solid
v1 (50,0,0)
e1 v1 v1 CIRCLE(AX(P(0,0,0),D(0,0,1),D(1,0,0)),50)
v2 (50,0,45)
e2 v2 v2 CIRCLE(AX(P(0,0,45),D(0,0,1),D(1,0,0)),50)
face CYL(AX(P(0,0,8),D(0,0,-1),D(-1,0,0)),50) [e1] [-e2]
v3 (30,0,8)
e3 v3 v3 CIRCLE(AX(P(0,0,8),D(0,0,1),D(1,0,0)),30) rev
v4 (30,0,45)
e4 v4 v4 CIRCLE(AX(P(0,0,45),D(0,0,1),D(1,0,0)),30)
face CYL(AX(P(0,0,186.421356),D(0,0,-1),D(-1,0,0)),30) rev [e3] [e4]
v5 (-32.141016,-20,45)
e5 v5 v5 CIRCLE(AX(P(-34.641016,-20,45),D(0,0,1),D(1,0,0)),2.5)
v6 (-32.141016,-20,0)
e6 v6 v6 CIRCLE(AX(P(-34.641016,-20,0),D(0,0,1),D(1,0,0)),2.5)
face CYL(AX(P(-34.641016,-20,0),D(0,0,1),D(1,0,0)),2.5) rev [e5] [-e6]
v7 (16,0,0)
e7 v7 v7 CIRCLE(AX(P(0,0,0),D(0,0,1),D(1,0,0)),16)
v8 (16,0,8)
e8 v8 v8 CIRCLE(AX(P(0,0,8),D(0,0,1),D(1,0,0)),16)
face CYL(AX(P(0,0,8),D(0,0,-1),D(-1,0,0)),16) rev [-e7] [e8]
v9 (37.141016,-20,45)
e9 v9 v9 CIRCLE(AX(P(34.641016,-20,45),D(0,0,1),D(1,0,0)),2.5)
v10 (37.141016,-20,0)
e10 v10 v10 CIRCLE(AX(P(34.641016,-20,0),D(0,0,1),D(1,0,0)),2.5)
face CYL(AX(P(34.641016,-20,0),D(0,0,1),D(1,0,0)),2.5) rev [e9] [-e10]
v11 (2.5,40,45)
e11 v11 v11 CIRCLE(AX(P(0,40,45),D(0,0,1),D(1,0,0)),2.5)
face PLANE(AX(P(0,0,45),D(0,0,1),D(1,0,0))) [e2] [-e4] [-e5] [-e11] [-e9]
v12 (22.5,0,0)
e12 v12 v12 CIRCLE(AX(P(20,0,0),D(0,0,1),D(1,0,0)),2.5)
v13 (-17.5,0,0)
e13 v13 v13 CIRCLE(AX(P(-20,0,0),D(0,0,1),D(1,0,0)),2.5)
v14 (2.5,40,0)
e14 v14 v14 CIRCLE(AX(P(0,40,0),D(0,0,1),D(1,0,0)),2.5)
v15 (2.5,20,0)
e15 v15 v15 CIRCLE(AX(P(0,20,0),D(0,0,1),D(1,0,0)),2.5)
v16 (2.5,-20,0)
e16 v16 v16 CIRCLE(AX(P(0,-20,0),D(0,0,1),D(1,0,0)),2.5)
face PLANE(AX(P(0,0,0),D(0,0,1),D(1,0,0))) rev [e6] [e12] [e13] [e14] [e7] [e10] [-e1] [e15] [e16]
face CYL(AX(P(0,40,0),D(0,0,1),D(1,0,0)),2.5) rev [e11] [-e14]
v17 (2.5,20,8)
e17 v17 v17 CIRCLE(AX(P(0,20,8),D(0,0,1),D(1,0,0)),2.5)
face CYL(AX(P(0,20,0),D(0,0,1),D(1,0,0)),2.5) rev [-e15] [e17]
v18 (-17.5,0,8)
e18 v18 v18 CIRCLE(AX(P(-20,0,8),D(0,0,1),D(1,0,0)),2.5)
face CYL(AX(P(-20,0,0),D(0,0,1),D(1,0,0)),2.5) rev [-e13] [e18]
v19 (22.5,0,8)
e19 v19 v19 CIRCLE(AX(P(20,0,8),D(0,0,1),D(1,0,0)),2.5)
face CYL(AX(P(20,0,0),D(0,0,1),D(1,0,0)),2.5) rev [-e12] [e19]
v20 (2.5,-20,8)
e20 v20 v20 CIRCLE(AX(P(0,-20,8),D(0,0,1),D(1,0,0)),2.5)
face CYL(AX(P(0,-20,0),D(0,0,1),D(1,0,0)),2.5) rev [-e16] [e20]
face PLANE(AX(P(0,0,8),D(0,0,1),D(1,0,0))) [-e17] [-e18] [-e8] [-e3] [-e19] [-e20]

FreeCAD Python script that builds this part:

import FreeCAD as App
import Part
import Sketcher
from FreeCAD import Vector

doc = App.newDocument("Part")
body = doc.addObject("PartDesign::Body", "Body")

# Sketch on XY plane
sketch1 = body.newObject("Sketcher::SketchObject", "Sketch")
sketch1.AttachmentSupport = (doc.getObject("XY_Plane"), [""])
sketch1.MapMode = "FlatFace"
sketch1.addGeometry([
    Part.Circle(Vector(0, 0, 0), Vector(0, 0, 1), 50),
    Part.Circle(Vector(0, 0, 0), Vector(0, 0, 1), 16),
], False)
sketch1.addConstraint([
    Sketcher.Constraint("Coincident", 0, 3, -1, 1),
    Sketcher.Constraint("Coincident", 1, 3, -1, 1),
    Sketcher.Constraint("Diameter", 0, 100.0),
    Sketcher.Constraint("Diameter", 1, 32.0),
])
pad1 = body.newObject("PartDesign::Pad", "Pad")
pad1.Profile = sketch1
pad1.Length = 8

# Sketch on XY plane
sketch2 = body.newObject("Sketcher::SketchObject", "Sketch001")
sketch2.AttachmentSupport = (doc.getObject("XY_Plane"), [""])
sketch2.MapMode = "FlatFace"
sketch2.AttachmentOffset = App.Placement(Vector(0, 0, 8), App.Rotation())
sketch2.addGeometry([
    Part.Circle(Vector(0, 0, 0), Vector(0, 0, 1), 50),
    Part.Circle(Vector(0, 0, 0), Vector(0, 0, 1), 30),
], False)
sketch2.addConstraint([
    Sketcher.Constraint("Coincident", 0, 3, -1, 1),
    Sketcher.Constraint("Coincident", 1, 3, -1, 1),
    Sketcher.Constraint("Diameter", 0, 100.0),
    Sketcher.Constraint("Diameter", 1, 60.0),
])
pad2 = body.newObject("PartDesign::Pad", "Pad001")
pad2.Profile = sketch2
pad2.Length = 37

# Sketch on XY plane
sketch3 = body.newObject("Sketcher::SketchObject", "Sketch002")
sketch3.AttachmentSupport = (doc.getObject("XY_Plane"), [""])
sketch3.MapMode = "FlatFace"
sketch3.AttachmentOffset = App.Placement(Vector(0, 0, 45), App.Rotation())
sketch3.addGeometry([
    Part.Circle(Vector(0, 40, 0), Vector(0, 0, 1), 2.5),
    Part.Circle(Vector(34.6, -20, 0), Vector(0, 0, 1), 2.5),
    Part.Circle(Vector(-34.6, -20, 0), Vector(0, 0, 1), 2.5),
], False)
sketch3.addConstraint([
    Sketcher.Constraint("Equal", 0, 1),
    Sketcher.Constraint("Equal", 1, 2),
    Sketcher.Constraint("Symmetric", 1, 3, 2, 3, -2),
    Sketcher.Constraint("PointOnObject", 0, 3, -2),
    Sketcher.Constraint("Diameter", 0, 5.0),
    Sketcher.Constraint("DistanceY", -1, 1, 0, 3, 40.0),
    Sketcher.Constraint("DistanceY", 1, 3, -1, 1, 20.0),
    Sketcher.Constraint("DistanceX", -1, 1, 1, 3, 34.641016),
])
pocket1 = body.newObject("PartDesign::Pocket", "Pocket")
pocket1.Profile = sketch3
pocket1.Type = "ThroughAll"

# Sketch on XY plane
sketch4 = body.newObject("Sketcher::SketchObject", "Sketch003")
sketch4.AttachmentSupport = (doc.getObject("XY_Plane"), [""])
sketch4.MapMode = "FlatFace"
sketch4.AttachmentOffset = App.Placement(Vector(0, 0, 8), App.Rotation())
sketch4.addGeometry([
    Part.Circle(Vector(0, 20, 0), Vector(0, 0, 1), 2.5),
    Part.Circle(Vector(20, 0, 0), Vector(0, 0, 1), 2.5),
    Part.Circle(Vector(0, -20, 0), Vector(0, 0, 1), 2.5),
    Part.Circle(Vector(-20, 0, 0), Vector(0, 0, 1), 2.5),
], False)
sketch4.addConstraint([
    Sketcher.Constraint("Equal", 0, 1),
    Sketcher.Constraint("Equal", 1, 2),
    Sketcher.Constraint("Equal", 2, 3),
    Sketcher.Constraint("Symmetric", 0, 3, 2, 3, -1, 1),
    Sketcher.Constraint("Symmetric", 1, 3, 3, 3, -1, 1),
    Sketcher.Constraint("PointOnObject", 0, 3, -2),
    Sketcher.Constraint("PointOnObject", 1, 3, -1),
    Sketcher.Constraint("Diameter", 0, 5.0),
    Sketcher.Constraint("DistanceY", -1, 1, 0, 3, 20.0),
    Sketcher.Constraint("DistanceX", -1, 1, 1, 3, 20.0),
])
pocket2 = body.newObject("PartDesign::Pocket", "Pocket001")
pocket2.Profile = sketch4
pocket2.Type = "ThroughAll"

doc.recompute()
